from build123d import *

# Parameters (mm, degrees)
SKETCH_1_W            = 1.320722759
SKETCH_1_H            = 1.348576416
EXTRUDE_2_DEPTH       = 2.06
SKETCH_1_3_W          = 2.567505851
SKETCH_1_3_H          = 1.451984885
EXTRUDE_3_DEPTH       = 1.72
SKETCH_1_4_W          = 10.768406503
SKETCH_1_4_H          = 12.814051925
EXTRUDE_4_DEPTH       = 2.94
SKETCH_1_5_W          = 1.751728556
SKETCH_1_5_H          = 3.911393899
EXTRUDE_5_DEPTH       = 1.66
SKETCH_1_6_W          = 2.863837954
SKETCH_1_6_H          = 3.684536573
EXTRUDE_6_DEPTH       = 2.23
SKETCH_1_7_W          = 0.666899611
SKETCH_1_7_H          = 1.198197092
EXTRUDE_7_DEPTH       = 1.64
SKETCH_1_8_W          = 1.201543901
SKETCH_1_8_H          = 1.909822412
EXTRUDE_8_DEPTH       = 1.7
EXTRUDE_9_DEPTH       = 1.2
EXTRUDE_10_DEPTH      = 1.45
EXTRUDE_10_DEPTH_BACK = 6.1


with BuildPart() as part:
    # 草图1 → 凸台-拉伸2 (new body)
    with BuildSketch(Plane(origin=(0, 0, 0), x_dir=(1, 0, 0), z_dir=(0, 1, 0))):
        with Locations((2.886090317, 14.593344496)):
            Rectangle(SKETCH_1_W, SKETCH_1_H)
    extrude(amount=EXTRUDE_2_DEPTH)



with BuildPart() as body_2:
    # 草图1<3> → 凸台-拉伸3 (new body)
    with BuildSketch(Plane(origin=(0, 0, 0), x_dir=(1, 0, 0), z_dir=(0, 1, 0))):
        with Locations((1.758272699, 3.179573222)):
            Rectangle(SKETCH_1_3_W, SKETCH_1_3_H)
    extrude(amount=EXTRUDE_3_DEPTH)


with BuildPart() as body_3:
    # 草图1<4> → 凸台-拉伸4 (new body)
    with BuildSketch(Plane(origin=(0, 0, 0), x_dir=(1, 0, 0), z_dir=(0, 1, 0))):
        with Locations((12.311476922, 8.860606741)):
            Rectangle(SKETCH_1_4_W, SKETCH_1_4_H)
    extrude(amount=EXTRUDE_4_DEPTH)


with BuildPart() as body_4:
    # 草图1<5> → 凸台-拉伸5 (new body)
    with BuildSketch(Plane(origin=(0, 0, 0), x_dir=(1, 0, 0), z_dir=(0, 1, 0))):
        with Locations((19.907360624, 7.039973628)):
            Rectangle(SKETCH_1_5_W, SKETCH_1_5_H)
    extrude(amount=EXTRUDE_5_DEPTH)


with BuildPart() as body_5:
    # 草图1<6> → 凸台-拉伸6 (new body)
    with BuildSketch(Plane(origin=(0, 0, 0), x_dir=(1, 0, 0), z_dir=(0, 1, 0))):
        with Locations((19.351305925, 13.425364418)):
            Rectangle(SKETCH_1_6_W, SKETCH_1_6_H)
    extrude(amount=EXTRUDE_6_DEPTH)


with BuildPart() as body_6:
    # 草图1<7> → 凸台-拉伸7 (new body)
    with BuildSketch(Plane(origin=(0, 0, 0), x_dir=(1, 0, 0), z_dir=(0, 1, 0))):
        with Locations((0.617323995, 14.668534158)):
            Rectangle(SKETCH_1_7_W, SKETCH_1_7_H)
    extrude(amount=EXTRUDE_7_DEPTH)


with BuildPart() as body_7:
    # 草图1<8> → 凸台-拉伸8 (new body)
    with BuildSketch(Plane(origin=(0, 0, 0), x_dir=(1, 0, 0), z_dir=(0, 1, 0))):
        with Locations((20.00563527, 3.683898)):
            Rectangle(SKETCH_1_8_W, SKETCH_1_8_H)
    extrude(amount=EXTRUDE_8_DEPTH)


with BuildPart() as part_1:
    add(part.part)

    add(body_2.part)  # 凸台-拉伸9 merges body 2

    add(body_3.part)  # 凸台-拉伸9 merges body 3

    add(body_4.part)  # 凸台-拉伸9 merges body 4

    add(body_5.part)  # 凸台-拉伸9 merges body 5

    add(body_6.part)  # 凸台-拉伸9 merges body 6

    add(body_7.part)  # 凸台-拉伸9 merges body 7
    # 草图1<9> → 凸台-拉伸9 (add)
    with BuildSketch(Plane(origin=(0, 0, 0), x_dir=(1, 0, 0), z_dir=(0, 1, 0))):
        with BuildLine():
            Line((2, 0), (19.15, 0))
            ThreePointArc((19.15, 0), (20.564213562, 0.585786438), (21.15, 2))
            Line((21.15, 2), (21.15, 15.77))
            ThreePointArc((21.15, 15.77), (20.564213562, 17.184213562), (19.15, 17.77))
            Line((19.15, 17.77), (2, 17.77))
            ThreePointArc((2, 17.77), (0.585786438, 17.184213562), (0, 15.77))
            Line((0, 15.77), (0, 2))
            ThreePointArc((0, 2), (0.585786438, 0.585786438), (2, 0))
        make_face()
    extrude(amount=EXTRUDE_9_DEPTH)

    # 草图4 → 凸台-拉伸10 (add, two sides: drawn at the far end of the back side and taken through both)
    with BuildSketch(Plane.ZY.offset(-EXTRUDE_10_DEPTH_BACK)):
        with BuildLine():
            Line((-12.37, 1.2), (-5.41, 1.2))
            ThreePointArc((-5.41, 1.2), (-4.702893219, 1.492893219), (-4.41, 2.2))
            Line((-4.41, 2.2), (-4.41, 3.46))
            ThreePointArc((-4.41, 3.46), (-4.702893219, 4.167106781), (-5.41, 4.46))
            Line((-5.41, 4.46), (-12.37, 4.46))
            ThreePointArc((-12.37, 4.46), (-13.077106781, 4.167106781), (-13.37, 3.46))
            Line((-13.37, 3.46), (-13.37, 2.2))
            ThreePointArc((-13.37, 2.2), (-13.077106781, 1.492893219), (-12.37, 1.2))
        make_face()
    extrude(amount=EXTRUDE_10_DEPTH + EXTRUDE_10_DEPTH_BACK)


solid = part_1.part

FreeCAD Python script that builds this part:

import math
import FreeCAD as App
import Part
import Sketcher
from FreeCAD import Vector


def add_polygon(sketch, points):
    """Adds a closed chain of lines whose ends are joined by coincident constraints."""
    first, n = sketch.GeometryCount, len(points)
    for a, b in zip(points, points[1:] + points[:1]):
        sketch.addGeometry(Part.LineSegment(App.Vector(*a, 0), App.Vector(*b, 0)), False)
    for i in range(n):
        sketch.addConstraint(Sketcher.Constraint("Coincident", first + i, 2, first + (i + 1) % n, 1))

doc = App.newDocument("Part")
body = doc.addObject("PartDesign::Body", "Body")

# Sketch on XZ plane
sketch1 = doc.addObject("Sketcher::SketchObject", "Sketch")
body.addObject(sketch1)
sketch1.AttachmentSupport = (doc.XZ_Plane, [""])
sketch1.MapMode = "FlatFace"
add_polygon(sketch1, [(2.2, -15.3), (2.2, -13.9), (3.5, -13.9), (3.5, -15.3)])  # lines 0-3
sketch1.addConstraint([
    Sketcher.Constraint("Vertical", 0),
    Sketcher.Constraint("Horizontal", 1),
    Sketcher.Constraint("Vertical", 2),
    Sketcher.Constraint("Horizontal", 3),
    Sketcher.Constraint("DistanceX", 1, 1, 1, 2, 1.320723),
    Sketcher.Constraint("DistanceY", 0, 1, 0, 2, 1.348576),
    Sketcher.Constraint("DistanceX", -1, 1, 0, 2, 2.225729),
    Sketcher.Constraint("DistanceY", 0, 2, -1, 1, 13.919056),
])
pad1 = doc.addObject("PartDesign::Pad", "Pad")
body.addObject(pad1)
pad1.Profile = sketch1
pad1.Length = 2.06
pad1.Reversed = True
body2 = doc.addObject("PartDesign::Body", "Body001")

# Sketch on XZ plane
sketch2 = doc.addObject("Sketcher::SketchObject", "Sketch001")
body2.addObject(sketch2)
sketch2.AttachmentSupport = (doc.getObject("XZ_Plane001"), [""])
sketch2.MapMode = "FlatFace"
add_polygon(sketch2, [(0.5, -3.9), (0.5, -2.5), (3, -2.5), (3, -3.9)])  # lines 0-3
sketch2.addConstraint([
    Sketcher.Constraint("Vertical", 0),
    Sketcher.Constraint("Horizontal", 1),
    Sketcher.Constraint("Vertical", 2),
    Sketcher.Constraint("Horizontal", 3),
    Sketcher.Constraint("DistanceX", 1, 1, 1, 2, 2.567506),
    Sketcher.Constraint("DistanceY", 0, 1, 0, 2, 1.451985),
    Sketcher.Constraint("DistanceX", -1, 1, 0, 2, 0.47452),
    Sketcher.Constraint("DistanceY", 0, 2, -1, 1, 2.453581),
])
pad2 = doc.addObject("PartDesign::Pad", "Pad001")
body2.addObject(pad2)
pad2.Profile = sketch2
pad2.Length = 1.72
pad2.Reversed = True
body3 = doc.addObject("PartDesign::Body", "Body002")

# Sketch on XZ plane
sketch3 = doc.addObject("Sketcher::SketchObject", "Sketch002")
body3.addObject(sketch3)
sketch3.AttachmentSupport = (doc.getObject("XZ_Plane002"), [""])
sketch3.MapMode = "FlatFace"
add_polygon(sketch3, [(7, -15), (7, -2), (18, -2), (18, -15)])  # lines 0-3
sketch3.addConstraint([
    Sketcher.Constraint("Vertical", 0),
    Sketcher.Constraint("Horizontal", 1),
    Sketcher.Constraint("Vertical", 2),
    Sketcher.Constraint("Horizontal", 3),
    Sketcher.Constraint("DistanceY", 0, 1, 0, 2, 12.814052),
    Sketcher.Constraint("DistanceX", 1, 1, 1, 2, 10.768407),
    Sketcher.Constraint("DistanceY", 0, 2, -1, 1, 2.453581),
    Sketcher.Constraint("DistanceX", -1, 1, 1, 2, 17.69568),
])
pad3 = doc.addObject("PartDesign::Pad", "Pad002")
body3.addObject(pad3)
pad3.Profile = sketch3
pad3.Length = 2.94
pad3.Reversed = True
body4 = doc.addObject("PartDesign::Body", "Body003")

# Sketch on XZ plane
sketch4 = doc.addObject("Sketcher::SketchObject", "Sketch003")
body4.addObject(sketch4)
sketch4.AttachmentSupport = (doc.getObject("XZ_Plane003"), [""])
sketch4.MapMode = "FlatFace"
add_polygon(sketch4, [(19, -9), (19, -5.1), (20.8, -5.1), (20.8, -9)])  # lines 0-3
sketch4.addConstraint([
    Sketcher.Constraint("Vertical", 0),
    Sketcher.Constraint("Horizontal", 1),
    Sketcher.Constraint("Vertical", 2),
    Sketcher.Constraint("Horizontal", 3),
    Sketcher.Constraint("DistanceX", 1, 1, 1, 2, 1.751729),
    Sketcher.Constraint("DistanceY", 0, 1, 0, 2, 3.911394),
    Sketcher.Constraint("DistanceY", 2, 2, -1, 1, 8.995671),
    Sketcher.Constraint("DistanceX", -1, 1, 0, 2, 19.031496),
])
pad4 = doc.addObject("PartDesign::Pad", "Pad003")
body4.addObject(pad4)
pad4.Profile = sketch4
pad4.Length = 1.66
pad4.Reversed = True
body5 = doc.addObject("PartDesign::Body", "Body004")

# Sketch on XZ plane
sketch5 = doc.addObject("Sketcher::SketchObject", "Sketch004")
body5.addObject(sketch5)
sketch5.AttachmentSupport = (doc.getObject("XZ_Plane004"), [""])
sketch5.MapMode = "FlatFace"
add_polygon(sketch5, [(17.9, -15.3), (17.9, -11.6), (20.8, -11.6), (20.8, -15.3)])  # lines 0-3
sketch5.addConstraint([
    Sketcher.Constraint("Vertical", 0),
    Sketcher.Constraint("Horizontal", 1),
    Sketcher.Constraint("Vertical", 2),
    Sketcher.Constraint("Horizontal", 3),
    Sketcher.Constraint("DistanceX", 1, 1, 1, 2, 2.863838),
    Sketcher.Constraint("DistanceY", 0, 1, 0, 2, 3.684537),
    Sketcher.Constraint("DistanceX", -1, 1, 0, 2, 17.919387),
    Sketcher.Constraint("DistanceY", 0, 2, -1, 1, 11.583096),
])
pad5 = doc.addObject("PartDesign::Pad", "Pad004")
body5.addObject(pad5)
pad5.Profile = sketch5
pad5.Length = 2.23
pad5.Reversed = True
body6 = doc.addObject("PartDesign::Body", "Body005")

# Sketch on XZ plane
sketch6 = doc.addObject("Sketcher::SketchObject", "Sketch005")
body6.addObject(sketch6)
sketch6.AttachmentSupport = (doc.getObject("XZ_Plane005"), [""])
sketch6.MapMode = "FlatFace"
add_polygon(sketch6, [(0.3, -15.3), (0.3, -14.1), (1, -14.1), (1, -15.3)])  # lines 0-3
sketch6.addConstraint([
    Sketcher.Constraint("Vertical", 0),
    Sketcher.Constraint("Horizontal", 1),
    Sketcher.Constraint("Vertical", 2),
    Sketcher.Constraint("Horizontal", 3),
    Sketcher.Constraint("DistanceX", 1, 1, 1, 2, 0.6669),
    Sketcher.Constraint("DistanceY", 0, 1, 0, 2, 1.198197),
    Sketcher.Constraint("DistanceX", -1, 1, 0, 2, 0.283874),
    Sketcher.Constraint("DistanceY", 0, 2, -1, 1, 14.069436),
])
pad6 = doc.addObject("PartDesign::Pad", "Pad005")
body6.addObject(pad6)
pad6.Profile = sketch6
pad6.Length = 1.64
pad6.Reversed = True
body7 = doc.addObject("PartDesign::Body", "Body006")

# Sketch on XZ plane
sketch7 = doc.addObject("Sketcher::SketchObject", "Sketch006")
body7.addObject(sketch7)
sketch7.AttachmentSupport = (doc.getObject("XZ_Plane006"), [""])
sketch7.MapMode = "FlatFace"
add_polygon(sketch7, [(19.4, -4.6), (19.4, -2.7), (20.6, -2.7), (20.6, -4.6)])  # lines 0-3
sketch7.addConstraint([
    Sketcher.Constraint("Vertical", 0),
    Sketcher.Constraint("Horizontal", 1),
    Sketcher.Constraint("Vertical", 2),
    Sketcher.Constraint("Horizontal", 3),
    Sketcher.Constraint("DistanceX", 1, 1, 1, 2, 1.201544),
    Sketcher.Constraint("DistanceY", 0, 1, 0, 2, 1.909822),
    Sketcher.Constraint("DistanceY", 2, 2, -1, 1, 4.638809),
    Sketcher.Constraint("DistanceX", -1, 1, 0, 2, 19.404863),
])
pad7 = doc.addObject("PartDesign::Pad", "Pad006")
body7.addObject(pad7)
pad7.Profile = sketch7
pad7.Length = 1.7
pad7.Reversed = True
body.AllowCompound = True
doc.recompute()

boolean = doc.addObject("PartDesign::Boolean", "Boolean")
body.addObject(boolean)
boolean.Type = "Fuse"
boolean.addObjects([body2])
doc.recompute()

boolean2 = doc.addObject("PartDesign::Boolean", "Boolean001")
body.addObject(boolean2)
boolean2.Type = "Fuse"
boolean2.addObjects([body3])
doc.recompute()

boolean3 = doc.addObject("PartDesign::Boolean", "Boolean002")
body.addObject(boolean3)
boolean3.Type = "Fuse"
boolean3.addObjects([body4])
doc.recompute()

boolean4 = doc.addObject("PartDesign::Boolean", "Boolean003")
body.addObject(boolean4)
boolean4.Type = "Fuse"
boolean4.addObjects([body5])
doc.recompute()

boolean5 = doc.addObject("PartDesign::Boolean", "Boolean004")
body.addObject(boolean5)
boolean5.Type = "Fuse"
boolean5.addObjects([body6])
doc.recompute()

boolean6 = doc.addObject("PartDesign::Boolean", "Boolean005")
body.addObject(boolean6)
boolean6.Type = "Fuse"
boolean6.addObjects([body7])

# Sketch on XZ plane
sketch8 = doc.addObject("Sketcher::SketchObject", "Sketch007")
body.addObject(sketch8)
sketch8.AttachmentSupport = (doc.XZ_Plane, [""])
sketch8.MapMode = "FlatFace"
sketch8.addGeometry([
    Part.LineSegment(Vector(2, 0, 0), Vector(19.1, 0, 0)),  # 0
    Part.ArcOfCircle(Part.Circle(Vector(19.1, -2, 0), Vector(0, 0, 1), 2), math.radians(0), math.radians(90)),  # 1
    Part.LineSegment(Vector(21.1, -2, 0), Vector(21.1, -15.8, 0)),  # 2
    Part.ArcOfCircle(Part.Circle(Vector(19.1, -15.8, 0), Vector(0, 0, 1), 2), math.radians(-90), math.radians(0)),  # 3
    Part.LineSegment(Vector(19.1, -17.8, 0), Vector(2, -17.8, 0)),  # 4
    Part.ArcOfCircle(Part.Circle(Vector(2, -15.8, 0), Vector(0, 0, 1), 2), math.radians(-180), math.radians(-90)),  # 5
    Part.LineSegment(Vector(0, -15.8, 0), Vector(0, -2, 0)),  # 6
    Part.ArcOfCircle(Part.Circle(Vector(2, -2, 0), Vector(0, 0, 1), 2), math.radians(90), math.radians(180)),  # 7
], False)
sketch8.addConstraint([
    Sketcher.Constraint("Tangent", 0, 2, 1, 2),
    Sketcher.Constraint("Tangent", 1, 1, 2, 1),
    Sketcher.Constraint("Tangent", 2, 2, 3, 2),
    Sketcher.Constraint("Tangent", 3, 1, 4, 1),
    Sketcher.Constraint("Tangent", 4, 2, 5, 2),
    Sketcher.Constraint("Tangent", 5, 1, 6, 1),
    Sketcher.Constraint("Tangent", 6, 2, 7, 2),
    Sketcher.Constraint("Tangent", 7, 1, 0, 1),
    Sketcher.Constraint("Horizontal", 0),
    Sketcher.Constraint("Vertical", 2),
    Sketcher.Constraint("Horizontal", 4),
    Sketcher.Constraint("Vertical", 6),
    Sketcher.Constraint("Equal", 1, 3),
    Sketcher.Constraint("Equal", 3, 5),
    Sketcher.Constraint("Equal", 5, 7),
    Sketcher.Constraint("PointOnObject", 0, 2, -1),
    Sketcher.Constraint("PointOnObject", 5, 1, -2),
    Sketcher.Constraint("Radius", 1, 2.0),
    Sketcher.Constraint("DistanceX", 0, 1, 0, 2, 17.15),
    Sketcher.Constraint("DistanceY", 2, 2, 2, 1, 13.77),
])
pad8 = doc.addObject("PartDesign::Pad", "Pad007")
body.addObject(pad8)
pad8.Profile = sketch8
pad8.Length = 1.2
pad8.Reversed = True

# Sketch on YZ plane
sketch9 = doc.addObject("Sketcher::SketchObject", "Sketch008")
body.addObject(sketch9)
sketch9.AttachmentSupport = (doc.YZ_Plane, [""])
sketch9.MapMode = "FlatFace"
sketch9.addGeometry([
    Part.LineSegment(Vector(1.2, -12.4, 0), Vector(1.2, -5.4, 0)),  # 0
    Part.ArcOfCircle(Part.Circle(Vector(2.2, -5.4, 0), Vector(0, 0, 1), 1), math.radians(90), math.radians(180)),  # 1
    Part.LineSegment(Vector(2.2, -4.4, 0), Vector(3.5, -4.4, 0)),  # 2
    Part.ArcOfCircle(Part.Circle(Vector(3.5, -5.4, 0), Vector(0, 0, 1), 1), math.radians(0), math.radians(90)),  # 3
    Part.LineSegment(Vector(4.5, -5.4, 0), Vector(4.5, -12.4, 0)),  # 4
    Part.ArcOfCircle(Part.Circle(Vector(3.5, -12.4, 0), Vector(0, 0, 1), 1), math.radians(-90), math.radians(0)),  # 5
    Part.LineSegment(Vector(3.5, -13.4, 0), Vector(2.2, -13.4, 0)),  # 6
    Part.ArcOfCircle(Part.Circle(Vector(2.2, -12.4, 0), Vector(0, 0, 1), 1), math.radians(-180), math.radians(-90)),  # 7
], False)
sketch9.addConstraint([
    Sketcher.Constraint("Tangent", 0, 2, 1, 2),
    Sketcher.Constraint("Tangent", 1, 1, 2, 1),
    Sketcher.Constraint("Tangent", 2, 2, 3, 2),
    Sketcher.Constraint("Tangent", 3, 1, 4, 1),
    Sketcher.Constraint("Tangent", 4, 2, 5, 2),
    Sketcher.Constraint("Tangent", 5, 1, 6, 1),
    Sketcher.Constraint("Tangent", 6, 2, 7, 2),
    Sketcher.Constraint("Tangent", 7, 1, 0, 1),
    Sketcher.Constraint("Vertical", 0),
    Sketcher.Constraint("Horizontal", 2),
    Sketcher.Constraint("Vertical", 4),
    Sketcher.Constraint("Horizontal", 6),
    Sketcher.Constraint("Equal", 1, 3),
    Sketcher.Constraint("Equal", 3, 5),
    Sketcher.Constraint("Equal", 5, 7),
    Sketcher.Constraint("Radius", 1, 1.0),
    Sketcher.Constraint("DistanceX", 2, 1, 2, 2, 1.26),
    Sketcher.Constraint("DistanceY", 0, 1, 0, 2, 6.96),
    Sketcher.Constraint("DistanceX", -1, 1, 1, 3, 2.2),
    Sketcher.Constraint("DistanceY", 1, 3, -1, 1, 5.41),
])
pad9 = doc.addObject("PartDesign::Pad", "Pad008")
body.addObject(pad9)
pad9.Profile = sketch9
pad9.Type = "TwoLengths"
pad9.Length = 1.45
pad9.Length2 = 6.1
pad9.Reversed = True

doc.recompute()
